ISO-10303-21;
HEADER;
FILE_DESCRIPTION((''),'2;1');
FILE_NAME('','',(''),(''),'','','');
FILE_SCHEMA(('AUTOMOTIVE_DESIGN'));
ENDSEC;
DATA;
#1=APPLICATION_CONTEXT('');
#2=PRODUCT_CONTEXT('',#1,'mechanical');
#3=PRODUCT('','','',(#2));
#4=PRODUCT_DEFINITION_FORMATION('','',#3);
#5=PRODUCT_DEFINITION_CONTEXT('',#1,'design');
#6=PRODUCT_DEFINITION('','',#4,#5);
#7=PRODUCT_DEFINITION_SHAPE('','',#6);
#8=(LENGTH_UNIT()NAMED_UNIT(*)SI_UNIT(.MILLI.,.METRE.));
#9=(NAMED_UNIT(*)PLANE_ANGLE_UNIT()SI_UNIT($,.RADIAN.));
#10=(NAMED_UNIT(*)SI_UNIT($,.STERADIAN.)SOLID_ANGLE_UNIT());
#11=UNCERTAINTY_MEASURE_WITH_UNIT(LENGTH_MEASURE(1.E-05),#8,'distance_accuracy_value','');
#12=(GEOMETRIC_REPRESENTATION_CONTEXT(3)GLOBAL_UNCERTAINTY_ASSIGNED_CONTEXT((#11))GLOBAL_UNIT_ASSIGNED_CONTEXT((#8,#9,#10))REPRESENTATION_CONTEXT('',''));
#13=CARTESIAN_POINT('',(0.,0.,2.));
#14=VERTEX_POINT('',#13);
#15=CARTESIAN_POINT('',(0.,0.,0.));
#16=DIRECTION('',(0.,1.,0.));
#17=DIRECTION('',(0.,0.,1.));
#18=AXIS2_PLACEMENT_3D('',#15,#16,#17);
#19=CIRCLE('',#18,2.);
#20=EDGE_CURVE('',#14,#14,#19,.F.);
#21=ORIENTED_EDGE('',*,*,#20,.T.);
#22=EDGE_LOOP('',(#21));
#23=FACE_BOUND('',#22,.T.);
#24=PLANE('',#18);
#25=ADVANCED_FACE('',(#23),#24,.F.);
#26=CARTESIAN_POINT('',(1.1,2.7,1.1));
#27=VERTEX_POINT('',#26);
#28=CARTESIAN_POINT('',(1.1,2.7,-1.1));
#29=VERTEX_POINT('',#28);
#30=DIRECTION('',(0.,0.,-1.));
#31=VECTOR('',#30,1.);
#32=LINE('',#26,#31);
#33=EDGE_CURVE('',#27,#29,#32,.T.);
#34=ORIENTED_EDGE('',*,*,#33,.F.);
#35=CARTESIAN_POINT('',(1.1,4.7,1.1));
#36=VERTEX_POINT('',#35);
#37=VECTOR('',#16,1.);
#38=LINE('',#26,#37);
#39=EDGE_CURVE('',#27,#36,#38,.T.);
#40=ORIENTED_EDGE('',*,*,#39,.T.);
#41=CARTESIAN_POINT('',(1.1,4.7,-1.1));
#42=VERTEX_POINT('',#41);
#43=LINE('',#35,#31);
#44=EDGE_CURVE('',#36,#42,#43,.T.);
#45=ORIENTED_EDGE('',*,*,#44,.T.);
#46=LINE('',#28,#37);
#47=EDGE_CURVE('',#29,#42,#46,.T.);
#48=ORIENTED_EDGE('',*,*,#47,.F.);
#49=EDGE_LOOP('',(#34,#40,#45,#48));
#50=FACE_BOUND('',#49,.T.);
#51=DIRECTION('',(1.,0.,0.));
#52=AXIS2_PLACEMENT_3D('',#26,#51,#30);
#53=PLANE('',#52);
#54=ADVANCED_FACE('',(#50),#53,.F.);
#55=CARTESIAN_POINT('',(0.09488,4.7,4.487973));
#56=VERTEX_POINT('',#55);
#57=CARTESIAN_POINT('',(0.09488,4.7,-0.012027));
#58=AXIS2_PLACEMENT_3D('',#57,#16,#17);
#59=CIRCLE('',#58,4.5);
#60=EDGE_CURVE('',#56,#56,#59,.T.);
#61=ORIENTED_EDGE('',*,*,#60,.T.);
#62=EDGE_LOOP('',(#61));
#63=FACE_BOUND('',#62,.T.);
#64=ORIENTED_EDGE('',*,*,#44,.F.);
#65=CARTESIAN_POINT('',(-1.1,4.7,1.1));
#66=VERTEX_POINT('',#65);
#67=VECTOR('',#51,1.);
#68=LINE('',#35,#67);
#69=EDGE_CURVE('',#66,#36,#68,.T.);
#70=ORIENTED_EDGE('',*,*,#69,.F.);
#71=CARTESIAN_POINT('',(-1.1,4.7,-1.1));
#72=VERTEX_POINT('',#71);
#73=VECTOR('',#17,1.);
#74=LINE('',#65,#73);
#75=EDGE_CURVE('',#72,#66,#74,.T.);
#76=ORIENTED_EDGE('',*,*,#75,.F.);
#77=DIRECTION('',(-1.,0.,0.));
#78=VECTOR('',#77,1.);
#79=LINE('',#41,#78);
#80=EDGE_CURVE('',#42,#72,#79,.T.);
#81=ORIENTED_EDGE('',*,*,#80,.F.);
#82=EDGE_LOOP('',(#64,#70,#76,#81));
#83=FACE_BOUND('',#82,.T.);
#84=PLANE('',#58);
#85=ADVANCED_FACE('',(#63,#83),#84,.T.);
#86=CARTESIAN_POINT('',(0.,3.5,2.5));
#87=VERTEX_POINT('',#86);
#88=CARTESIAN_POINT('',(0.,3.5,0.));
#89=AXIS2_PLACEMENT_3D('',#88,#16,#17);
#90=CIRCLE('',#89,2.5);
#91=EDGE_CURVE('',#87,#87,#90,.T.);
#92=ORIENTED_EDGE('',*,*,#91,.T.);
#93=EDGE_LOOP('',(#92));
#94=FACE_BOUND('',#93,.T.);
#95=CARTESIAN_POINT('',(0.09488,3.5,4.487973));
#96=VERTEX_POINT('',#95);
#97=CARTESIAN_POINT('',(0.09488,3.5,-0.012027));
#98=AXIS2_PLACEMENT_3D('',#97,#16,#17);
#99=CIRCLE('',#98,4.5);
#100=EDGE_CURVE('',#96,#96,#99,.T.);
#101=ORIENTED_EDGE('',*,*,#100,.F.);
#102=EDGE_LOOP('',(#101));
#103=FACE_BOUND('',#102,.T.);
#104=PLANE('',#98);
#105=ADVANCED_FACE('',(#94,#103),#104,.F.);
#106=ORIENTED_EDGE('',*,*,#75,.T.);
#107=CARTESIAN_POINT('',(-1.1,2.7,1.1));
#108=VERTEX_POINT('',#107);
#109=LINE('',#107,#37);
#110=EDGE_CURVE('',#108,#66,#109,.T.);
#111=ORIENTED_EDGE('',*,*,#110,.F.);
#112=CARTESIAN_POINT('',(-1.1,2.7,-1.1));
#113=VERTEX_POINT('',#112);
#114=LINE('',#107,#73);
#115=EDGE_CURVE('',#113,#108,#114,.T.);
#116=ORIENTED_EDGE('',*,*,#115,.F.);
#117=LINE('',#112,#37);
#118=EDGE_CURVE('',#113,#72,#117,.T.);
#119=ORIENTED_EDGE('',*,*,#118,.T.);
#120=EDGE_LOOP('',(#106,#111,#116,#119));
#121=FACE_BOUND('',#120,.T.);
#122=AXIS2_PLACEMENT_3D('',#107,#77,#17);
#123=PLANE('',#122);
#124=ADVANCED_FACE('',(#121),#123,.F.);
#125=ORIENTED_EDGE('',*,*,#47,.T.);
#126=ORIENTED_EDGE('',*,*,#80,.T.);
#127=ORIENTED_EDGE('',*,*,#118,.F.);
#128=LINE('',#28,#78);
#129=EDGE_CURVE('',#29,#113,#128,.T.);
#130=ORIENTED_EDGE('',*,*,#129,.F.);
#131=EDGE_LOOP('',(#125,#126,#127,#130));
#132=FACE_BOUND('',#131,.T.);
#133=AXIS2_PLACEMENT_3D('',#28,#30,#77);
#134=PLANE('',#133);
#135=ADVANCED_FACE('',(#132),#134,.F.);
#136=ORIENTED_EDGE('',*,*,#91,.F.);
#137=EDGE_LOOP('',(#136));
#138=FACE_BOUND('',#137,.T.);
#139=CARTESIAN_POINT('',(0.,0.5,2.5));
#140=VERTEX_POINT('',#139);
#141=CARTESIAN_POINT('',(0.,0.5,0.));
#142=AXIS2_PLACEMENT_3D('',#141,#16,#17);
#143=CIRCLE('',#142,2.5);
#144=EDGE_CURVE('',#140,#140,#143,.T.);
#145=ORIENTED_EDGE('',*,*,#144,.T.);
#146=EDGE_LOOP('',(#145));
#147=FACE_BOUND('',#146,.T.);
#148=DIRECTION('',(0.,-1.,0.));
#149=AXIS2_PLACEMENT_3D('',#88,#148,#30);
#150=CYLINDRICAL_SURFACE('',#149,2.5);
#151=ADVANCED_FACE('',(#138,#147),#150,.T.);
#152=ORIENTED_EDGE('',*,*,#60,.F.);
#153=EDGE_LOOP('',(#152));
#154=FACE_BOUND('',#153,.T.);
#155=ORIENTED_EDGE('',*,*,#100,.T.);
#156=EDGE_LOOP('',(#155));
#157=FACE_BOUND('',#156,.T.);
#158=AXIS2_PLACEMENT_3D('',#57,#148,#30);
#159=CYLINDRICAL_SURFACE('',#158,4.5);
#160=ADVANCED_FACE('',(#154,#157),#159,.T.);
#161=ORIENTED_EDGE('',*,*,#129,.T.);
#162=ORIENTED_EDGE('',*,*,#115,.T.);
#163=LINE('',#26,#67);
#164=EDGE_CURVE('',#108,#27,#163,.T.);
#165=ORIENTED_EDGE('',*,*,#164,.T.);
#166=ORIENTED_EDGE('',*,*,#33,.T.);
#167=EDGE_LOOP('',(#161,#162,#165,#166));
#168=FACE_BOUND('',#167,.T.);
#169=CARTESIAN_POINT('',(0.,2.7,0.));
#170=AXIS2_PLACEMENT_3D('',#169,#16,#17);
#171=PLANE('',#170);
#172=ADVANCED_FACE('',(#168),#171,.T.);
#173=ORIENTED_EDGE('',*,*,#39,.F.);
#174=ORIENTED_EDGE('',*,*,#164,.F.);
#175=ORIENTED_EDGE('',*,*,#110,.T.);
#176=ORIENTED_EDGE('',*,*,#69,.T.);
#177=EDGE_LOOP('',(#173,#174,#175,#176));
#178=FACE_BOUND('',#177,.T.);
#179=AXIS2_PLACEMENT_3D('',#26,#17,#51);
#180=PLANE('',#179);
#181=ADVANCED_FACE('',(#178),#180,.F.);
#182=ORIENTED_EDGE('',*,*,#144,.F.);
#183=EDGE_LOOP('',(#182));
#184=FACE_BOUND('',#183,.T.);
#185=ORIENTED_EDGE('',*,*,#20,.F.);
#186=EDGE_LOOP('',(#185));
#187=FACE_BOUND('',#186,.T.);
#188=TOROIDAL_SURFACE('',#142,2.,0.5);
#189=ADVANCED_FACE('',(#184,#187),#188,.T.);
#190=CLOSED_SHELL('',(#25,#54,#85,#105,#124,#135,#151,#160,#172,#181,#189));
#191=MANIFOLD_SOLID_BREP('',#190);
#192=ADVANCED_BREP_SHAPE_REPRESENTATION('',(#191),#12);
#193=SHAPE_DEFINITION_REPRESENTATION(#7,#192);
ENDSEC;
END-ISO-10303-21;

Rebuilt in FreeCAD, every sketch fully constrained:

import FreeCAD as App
import Part
import Sketcher
from FreeCAD import Vector


def edges_at(feature, points):
    """Names of the edges that pass closest to the given points."""
    edges = feature.Shape.Edges
    near = lambda p: min(range(len(edges)), key=lambda i: edges[i].distToShape(Part.Vertex(*p))[0])
    return sorted({f"Edge{near(p) + 1}" for p in points})


def add_polygon(sketch, points):
    """Adds a closed chain of lines whose ends are joined by coincident constraints."""
    first, n = sketch.GeometryCount, len(points)
    for a, b in zip(points, points[1:] + points[:1]):
        sketch.addGeometry(Part.LineSegment(App.Vector(*a, 0), App.Vector(*b, 0)), False)
    for i in range(n):
        sketch.addConstraint(Sketcher.Constraint("Coincident", first + i, 2, first + (i + 1) % n, 1))

doc = App.newDocument("Part")
body = doc.addObject("PartDesign::Body", "Body")

# Sketch on XZ plane
sketch1 = body.newObject("Sketcher::SketchObject", "Sketch")
sketch1.AttachmentSupport = (doc.getObject("XZ_Plane"), [""])
sketch1.MapMode = "FlatFace"
sketch1.addGeometry(Part.Circle(Vector(0, 0, 0), Vector(0, 0, 1), 2.5), False)
sketch1.addConstraint([
    Sketcher.Constraint("Coincident", 0, 3, -1, 1),
    Sketcher.Constraint("Diameter", 0, 5.0),
])
pad1 = body.newObject("PartDesign::Pad", "Pad")
pad1.Profile = sketch1
pad1.Length = 3.5
pad1.Reversed = True

# Sketch on XZ plane
sketch2 = body.newObject("Sketcher::SketchObject", "Sketch001")
sketch2.AttachmentSupport = (doc.getObject("XZ_Plane"), [""])
sketch2.MapMode = "FlatFace"
sketch2.AttachmentOffset = App.Placement(Vector(0, 0, -3.5), App.Rotation())
sketch2.addGeometry(Part.Circle(Vector(0.1, 0, 0), Vector(0, 0, 1), 4.5), False)
sketch2.addConstraint([
    Sketcher.Constraint("Diameter", 0, 9.0),
    Sketcher.Constraint("DistanceX", -1, 1, 0, 3, 0.09488),
    Sketcher.Constraint("DistanceY", 0, 3, -1, 1, 0.012027),
])
pad2 = body.newObject("PartDesign::Pad", "Pad001")
pad2.Profile = sketch2
pad2.Length = 1.2
pad2.Reversed = True

# Sketch on XZ plane
sketch3 = body.newObject("Sketcher::SketchObject", "Sketch002")
sketch3.AttachmentSupport = (doc.getObject("XZ_Plane"), [""])
sketch3.MapMode = "FlatFace"
sketch3.AttachmentOffset = App.Placement(Vector(0, 0, -4.7), App.Rotation())
add_polygon(sketch3, [(-1.1, -1.1), (-1.1, 1.1), (1.1, 1.1), (1.1, -1.1)])  # lines 0-3
sketch3.addConstraint([
    Sketcher.Constraint("Vertical", 0),
    Sketcher.Constraint("Horizontal", 1),
    Sketcher.Constraint("Vertical", 2),
    Sketcher.Constraint("Horizontal", 3),
    Sketcher.Constraint("Symmetric", 0, 2, 2, 2, -1, 1),
    Sketcher.Constraint("Equal", 3, 0),
    Sketcher.Constraint("DistanceX", 1, 1, 1, 2, 2.2),
])
pocket1 = body.newObject("PartDesign::Pocket", "Pocket")
pocket1.Profile = sketch3
pocket1.Length = 2
pocket1.Reversed = True
doc.recompute()

fillet = body.newObject("PartDesign::Fillet", "Fillet")
fillet.Base = (pocket1, edges_at(pocket1, [(0, 0, -2.5)]))
fillet.Radius = 0.5

doc.recompute()
